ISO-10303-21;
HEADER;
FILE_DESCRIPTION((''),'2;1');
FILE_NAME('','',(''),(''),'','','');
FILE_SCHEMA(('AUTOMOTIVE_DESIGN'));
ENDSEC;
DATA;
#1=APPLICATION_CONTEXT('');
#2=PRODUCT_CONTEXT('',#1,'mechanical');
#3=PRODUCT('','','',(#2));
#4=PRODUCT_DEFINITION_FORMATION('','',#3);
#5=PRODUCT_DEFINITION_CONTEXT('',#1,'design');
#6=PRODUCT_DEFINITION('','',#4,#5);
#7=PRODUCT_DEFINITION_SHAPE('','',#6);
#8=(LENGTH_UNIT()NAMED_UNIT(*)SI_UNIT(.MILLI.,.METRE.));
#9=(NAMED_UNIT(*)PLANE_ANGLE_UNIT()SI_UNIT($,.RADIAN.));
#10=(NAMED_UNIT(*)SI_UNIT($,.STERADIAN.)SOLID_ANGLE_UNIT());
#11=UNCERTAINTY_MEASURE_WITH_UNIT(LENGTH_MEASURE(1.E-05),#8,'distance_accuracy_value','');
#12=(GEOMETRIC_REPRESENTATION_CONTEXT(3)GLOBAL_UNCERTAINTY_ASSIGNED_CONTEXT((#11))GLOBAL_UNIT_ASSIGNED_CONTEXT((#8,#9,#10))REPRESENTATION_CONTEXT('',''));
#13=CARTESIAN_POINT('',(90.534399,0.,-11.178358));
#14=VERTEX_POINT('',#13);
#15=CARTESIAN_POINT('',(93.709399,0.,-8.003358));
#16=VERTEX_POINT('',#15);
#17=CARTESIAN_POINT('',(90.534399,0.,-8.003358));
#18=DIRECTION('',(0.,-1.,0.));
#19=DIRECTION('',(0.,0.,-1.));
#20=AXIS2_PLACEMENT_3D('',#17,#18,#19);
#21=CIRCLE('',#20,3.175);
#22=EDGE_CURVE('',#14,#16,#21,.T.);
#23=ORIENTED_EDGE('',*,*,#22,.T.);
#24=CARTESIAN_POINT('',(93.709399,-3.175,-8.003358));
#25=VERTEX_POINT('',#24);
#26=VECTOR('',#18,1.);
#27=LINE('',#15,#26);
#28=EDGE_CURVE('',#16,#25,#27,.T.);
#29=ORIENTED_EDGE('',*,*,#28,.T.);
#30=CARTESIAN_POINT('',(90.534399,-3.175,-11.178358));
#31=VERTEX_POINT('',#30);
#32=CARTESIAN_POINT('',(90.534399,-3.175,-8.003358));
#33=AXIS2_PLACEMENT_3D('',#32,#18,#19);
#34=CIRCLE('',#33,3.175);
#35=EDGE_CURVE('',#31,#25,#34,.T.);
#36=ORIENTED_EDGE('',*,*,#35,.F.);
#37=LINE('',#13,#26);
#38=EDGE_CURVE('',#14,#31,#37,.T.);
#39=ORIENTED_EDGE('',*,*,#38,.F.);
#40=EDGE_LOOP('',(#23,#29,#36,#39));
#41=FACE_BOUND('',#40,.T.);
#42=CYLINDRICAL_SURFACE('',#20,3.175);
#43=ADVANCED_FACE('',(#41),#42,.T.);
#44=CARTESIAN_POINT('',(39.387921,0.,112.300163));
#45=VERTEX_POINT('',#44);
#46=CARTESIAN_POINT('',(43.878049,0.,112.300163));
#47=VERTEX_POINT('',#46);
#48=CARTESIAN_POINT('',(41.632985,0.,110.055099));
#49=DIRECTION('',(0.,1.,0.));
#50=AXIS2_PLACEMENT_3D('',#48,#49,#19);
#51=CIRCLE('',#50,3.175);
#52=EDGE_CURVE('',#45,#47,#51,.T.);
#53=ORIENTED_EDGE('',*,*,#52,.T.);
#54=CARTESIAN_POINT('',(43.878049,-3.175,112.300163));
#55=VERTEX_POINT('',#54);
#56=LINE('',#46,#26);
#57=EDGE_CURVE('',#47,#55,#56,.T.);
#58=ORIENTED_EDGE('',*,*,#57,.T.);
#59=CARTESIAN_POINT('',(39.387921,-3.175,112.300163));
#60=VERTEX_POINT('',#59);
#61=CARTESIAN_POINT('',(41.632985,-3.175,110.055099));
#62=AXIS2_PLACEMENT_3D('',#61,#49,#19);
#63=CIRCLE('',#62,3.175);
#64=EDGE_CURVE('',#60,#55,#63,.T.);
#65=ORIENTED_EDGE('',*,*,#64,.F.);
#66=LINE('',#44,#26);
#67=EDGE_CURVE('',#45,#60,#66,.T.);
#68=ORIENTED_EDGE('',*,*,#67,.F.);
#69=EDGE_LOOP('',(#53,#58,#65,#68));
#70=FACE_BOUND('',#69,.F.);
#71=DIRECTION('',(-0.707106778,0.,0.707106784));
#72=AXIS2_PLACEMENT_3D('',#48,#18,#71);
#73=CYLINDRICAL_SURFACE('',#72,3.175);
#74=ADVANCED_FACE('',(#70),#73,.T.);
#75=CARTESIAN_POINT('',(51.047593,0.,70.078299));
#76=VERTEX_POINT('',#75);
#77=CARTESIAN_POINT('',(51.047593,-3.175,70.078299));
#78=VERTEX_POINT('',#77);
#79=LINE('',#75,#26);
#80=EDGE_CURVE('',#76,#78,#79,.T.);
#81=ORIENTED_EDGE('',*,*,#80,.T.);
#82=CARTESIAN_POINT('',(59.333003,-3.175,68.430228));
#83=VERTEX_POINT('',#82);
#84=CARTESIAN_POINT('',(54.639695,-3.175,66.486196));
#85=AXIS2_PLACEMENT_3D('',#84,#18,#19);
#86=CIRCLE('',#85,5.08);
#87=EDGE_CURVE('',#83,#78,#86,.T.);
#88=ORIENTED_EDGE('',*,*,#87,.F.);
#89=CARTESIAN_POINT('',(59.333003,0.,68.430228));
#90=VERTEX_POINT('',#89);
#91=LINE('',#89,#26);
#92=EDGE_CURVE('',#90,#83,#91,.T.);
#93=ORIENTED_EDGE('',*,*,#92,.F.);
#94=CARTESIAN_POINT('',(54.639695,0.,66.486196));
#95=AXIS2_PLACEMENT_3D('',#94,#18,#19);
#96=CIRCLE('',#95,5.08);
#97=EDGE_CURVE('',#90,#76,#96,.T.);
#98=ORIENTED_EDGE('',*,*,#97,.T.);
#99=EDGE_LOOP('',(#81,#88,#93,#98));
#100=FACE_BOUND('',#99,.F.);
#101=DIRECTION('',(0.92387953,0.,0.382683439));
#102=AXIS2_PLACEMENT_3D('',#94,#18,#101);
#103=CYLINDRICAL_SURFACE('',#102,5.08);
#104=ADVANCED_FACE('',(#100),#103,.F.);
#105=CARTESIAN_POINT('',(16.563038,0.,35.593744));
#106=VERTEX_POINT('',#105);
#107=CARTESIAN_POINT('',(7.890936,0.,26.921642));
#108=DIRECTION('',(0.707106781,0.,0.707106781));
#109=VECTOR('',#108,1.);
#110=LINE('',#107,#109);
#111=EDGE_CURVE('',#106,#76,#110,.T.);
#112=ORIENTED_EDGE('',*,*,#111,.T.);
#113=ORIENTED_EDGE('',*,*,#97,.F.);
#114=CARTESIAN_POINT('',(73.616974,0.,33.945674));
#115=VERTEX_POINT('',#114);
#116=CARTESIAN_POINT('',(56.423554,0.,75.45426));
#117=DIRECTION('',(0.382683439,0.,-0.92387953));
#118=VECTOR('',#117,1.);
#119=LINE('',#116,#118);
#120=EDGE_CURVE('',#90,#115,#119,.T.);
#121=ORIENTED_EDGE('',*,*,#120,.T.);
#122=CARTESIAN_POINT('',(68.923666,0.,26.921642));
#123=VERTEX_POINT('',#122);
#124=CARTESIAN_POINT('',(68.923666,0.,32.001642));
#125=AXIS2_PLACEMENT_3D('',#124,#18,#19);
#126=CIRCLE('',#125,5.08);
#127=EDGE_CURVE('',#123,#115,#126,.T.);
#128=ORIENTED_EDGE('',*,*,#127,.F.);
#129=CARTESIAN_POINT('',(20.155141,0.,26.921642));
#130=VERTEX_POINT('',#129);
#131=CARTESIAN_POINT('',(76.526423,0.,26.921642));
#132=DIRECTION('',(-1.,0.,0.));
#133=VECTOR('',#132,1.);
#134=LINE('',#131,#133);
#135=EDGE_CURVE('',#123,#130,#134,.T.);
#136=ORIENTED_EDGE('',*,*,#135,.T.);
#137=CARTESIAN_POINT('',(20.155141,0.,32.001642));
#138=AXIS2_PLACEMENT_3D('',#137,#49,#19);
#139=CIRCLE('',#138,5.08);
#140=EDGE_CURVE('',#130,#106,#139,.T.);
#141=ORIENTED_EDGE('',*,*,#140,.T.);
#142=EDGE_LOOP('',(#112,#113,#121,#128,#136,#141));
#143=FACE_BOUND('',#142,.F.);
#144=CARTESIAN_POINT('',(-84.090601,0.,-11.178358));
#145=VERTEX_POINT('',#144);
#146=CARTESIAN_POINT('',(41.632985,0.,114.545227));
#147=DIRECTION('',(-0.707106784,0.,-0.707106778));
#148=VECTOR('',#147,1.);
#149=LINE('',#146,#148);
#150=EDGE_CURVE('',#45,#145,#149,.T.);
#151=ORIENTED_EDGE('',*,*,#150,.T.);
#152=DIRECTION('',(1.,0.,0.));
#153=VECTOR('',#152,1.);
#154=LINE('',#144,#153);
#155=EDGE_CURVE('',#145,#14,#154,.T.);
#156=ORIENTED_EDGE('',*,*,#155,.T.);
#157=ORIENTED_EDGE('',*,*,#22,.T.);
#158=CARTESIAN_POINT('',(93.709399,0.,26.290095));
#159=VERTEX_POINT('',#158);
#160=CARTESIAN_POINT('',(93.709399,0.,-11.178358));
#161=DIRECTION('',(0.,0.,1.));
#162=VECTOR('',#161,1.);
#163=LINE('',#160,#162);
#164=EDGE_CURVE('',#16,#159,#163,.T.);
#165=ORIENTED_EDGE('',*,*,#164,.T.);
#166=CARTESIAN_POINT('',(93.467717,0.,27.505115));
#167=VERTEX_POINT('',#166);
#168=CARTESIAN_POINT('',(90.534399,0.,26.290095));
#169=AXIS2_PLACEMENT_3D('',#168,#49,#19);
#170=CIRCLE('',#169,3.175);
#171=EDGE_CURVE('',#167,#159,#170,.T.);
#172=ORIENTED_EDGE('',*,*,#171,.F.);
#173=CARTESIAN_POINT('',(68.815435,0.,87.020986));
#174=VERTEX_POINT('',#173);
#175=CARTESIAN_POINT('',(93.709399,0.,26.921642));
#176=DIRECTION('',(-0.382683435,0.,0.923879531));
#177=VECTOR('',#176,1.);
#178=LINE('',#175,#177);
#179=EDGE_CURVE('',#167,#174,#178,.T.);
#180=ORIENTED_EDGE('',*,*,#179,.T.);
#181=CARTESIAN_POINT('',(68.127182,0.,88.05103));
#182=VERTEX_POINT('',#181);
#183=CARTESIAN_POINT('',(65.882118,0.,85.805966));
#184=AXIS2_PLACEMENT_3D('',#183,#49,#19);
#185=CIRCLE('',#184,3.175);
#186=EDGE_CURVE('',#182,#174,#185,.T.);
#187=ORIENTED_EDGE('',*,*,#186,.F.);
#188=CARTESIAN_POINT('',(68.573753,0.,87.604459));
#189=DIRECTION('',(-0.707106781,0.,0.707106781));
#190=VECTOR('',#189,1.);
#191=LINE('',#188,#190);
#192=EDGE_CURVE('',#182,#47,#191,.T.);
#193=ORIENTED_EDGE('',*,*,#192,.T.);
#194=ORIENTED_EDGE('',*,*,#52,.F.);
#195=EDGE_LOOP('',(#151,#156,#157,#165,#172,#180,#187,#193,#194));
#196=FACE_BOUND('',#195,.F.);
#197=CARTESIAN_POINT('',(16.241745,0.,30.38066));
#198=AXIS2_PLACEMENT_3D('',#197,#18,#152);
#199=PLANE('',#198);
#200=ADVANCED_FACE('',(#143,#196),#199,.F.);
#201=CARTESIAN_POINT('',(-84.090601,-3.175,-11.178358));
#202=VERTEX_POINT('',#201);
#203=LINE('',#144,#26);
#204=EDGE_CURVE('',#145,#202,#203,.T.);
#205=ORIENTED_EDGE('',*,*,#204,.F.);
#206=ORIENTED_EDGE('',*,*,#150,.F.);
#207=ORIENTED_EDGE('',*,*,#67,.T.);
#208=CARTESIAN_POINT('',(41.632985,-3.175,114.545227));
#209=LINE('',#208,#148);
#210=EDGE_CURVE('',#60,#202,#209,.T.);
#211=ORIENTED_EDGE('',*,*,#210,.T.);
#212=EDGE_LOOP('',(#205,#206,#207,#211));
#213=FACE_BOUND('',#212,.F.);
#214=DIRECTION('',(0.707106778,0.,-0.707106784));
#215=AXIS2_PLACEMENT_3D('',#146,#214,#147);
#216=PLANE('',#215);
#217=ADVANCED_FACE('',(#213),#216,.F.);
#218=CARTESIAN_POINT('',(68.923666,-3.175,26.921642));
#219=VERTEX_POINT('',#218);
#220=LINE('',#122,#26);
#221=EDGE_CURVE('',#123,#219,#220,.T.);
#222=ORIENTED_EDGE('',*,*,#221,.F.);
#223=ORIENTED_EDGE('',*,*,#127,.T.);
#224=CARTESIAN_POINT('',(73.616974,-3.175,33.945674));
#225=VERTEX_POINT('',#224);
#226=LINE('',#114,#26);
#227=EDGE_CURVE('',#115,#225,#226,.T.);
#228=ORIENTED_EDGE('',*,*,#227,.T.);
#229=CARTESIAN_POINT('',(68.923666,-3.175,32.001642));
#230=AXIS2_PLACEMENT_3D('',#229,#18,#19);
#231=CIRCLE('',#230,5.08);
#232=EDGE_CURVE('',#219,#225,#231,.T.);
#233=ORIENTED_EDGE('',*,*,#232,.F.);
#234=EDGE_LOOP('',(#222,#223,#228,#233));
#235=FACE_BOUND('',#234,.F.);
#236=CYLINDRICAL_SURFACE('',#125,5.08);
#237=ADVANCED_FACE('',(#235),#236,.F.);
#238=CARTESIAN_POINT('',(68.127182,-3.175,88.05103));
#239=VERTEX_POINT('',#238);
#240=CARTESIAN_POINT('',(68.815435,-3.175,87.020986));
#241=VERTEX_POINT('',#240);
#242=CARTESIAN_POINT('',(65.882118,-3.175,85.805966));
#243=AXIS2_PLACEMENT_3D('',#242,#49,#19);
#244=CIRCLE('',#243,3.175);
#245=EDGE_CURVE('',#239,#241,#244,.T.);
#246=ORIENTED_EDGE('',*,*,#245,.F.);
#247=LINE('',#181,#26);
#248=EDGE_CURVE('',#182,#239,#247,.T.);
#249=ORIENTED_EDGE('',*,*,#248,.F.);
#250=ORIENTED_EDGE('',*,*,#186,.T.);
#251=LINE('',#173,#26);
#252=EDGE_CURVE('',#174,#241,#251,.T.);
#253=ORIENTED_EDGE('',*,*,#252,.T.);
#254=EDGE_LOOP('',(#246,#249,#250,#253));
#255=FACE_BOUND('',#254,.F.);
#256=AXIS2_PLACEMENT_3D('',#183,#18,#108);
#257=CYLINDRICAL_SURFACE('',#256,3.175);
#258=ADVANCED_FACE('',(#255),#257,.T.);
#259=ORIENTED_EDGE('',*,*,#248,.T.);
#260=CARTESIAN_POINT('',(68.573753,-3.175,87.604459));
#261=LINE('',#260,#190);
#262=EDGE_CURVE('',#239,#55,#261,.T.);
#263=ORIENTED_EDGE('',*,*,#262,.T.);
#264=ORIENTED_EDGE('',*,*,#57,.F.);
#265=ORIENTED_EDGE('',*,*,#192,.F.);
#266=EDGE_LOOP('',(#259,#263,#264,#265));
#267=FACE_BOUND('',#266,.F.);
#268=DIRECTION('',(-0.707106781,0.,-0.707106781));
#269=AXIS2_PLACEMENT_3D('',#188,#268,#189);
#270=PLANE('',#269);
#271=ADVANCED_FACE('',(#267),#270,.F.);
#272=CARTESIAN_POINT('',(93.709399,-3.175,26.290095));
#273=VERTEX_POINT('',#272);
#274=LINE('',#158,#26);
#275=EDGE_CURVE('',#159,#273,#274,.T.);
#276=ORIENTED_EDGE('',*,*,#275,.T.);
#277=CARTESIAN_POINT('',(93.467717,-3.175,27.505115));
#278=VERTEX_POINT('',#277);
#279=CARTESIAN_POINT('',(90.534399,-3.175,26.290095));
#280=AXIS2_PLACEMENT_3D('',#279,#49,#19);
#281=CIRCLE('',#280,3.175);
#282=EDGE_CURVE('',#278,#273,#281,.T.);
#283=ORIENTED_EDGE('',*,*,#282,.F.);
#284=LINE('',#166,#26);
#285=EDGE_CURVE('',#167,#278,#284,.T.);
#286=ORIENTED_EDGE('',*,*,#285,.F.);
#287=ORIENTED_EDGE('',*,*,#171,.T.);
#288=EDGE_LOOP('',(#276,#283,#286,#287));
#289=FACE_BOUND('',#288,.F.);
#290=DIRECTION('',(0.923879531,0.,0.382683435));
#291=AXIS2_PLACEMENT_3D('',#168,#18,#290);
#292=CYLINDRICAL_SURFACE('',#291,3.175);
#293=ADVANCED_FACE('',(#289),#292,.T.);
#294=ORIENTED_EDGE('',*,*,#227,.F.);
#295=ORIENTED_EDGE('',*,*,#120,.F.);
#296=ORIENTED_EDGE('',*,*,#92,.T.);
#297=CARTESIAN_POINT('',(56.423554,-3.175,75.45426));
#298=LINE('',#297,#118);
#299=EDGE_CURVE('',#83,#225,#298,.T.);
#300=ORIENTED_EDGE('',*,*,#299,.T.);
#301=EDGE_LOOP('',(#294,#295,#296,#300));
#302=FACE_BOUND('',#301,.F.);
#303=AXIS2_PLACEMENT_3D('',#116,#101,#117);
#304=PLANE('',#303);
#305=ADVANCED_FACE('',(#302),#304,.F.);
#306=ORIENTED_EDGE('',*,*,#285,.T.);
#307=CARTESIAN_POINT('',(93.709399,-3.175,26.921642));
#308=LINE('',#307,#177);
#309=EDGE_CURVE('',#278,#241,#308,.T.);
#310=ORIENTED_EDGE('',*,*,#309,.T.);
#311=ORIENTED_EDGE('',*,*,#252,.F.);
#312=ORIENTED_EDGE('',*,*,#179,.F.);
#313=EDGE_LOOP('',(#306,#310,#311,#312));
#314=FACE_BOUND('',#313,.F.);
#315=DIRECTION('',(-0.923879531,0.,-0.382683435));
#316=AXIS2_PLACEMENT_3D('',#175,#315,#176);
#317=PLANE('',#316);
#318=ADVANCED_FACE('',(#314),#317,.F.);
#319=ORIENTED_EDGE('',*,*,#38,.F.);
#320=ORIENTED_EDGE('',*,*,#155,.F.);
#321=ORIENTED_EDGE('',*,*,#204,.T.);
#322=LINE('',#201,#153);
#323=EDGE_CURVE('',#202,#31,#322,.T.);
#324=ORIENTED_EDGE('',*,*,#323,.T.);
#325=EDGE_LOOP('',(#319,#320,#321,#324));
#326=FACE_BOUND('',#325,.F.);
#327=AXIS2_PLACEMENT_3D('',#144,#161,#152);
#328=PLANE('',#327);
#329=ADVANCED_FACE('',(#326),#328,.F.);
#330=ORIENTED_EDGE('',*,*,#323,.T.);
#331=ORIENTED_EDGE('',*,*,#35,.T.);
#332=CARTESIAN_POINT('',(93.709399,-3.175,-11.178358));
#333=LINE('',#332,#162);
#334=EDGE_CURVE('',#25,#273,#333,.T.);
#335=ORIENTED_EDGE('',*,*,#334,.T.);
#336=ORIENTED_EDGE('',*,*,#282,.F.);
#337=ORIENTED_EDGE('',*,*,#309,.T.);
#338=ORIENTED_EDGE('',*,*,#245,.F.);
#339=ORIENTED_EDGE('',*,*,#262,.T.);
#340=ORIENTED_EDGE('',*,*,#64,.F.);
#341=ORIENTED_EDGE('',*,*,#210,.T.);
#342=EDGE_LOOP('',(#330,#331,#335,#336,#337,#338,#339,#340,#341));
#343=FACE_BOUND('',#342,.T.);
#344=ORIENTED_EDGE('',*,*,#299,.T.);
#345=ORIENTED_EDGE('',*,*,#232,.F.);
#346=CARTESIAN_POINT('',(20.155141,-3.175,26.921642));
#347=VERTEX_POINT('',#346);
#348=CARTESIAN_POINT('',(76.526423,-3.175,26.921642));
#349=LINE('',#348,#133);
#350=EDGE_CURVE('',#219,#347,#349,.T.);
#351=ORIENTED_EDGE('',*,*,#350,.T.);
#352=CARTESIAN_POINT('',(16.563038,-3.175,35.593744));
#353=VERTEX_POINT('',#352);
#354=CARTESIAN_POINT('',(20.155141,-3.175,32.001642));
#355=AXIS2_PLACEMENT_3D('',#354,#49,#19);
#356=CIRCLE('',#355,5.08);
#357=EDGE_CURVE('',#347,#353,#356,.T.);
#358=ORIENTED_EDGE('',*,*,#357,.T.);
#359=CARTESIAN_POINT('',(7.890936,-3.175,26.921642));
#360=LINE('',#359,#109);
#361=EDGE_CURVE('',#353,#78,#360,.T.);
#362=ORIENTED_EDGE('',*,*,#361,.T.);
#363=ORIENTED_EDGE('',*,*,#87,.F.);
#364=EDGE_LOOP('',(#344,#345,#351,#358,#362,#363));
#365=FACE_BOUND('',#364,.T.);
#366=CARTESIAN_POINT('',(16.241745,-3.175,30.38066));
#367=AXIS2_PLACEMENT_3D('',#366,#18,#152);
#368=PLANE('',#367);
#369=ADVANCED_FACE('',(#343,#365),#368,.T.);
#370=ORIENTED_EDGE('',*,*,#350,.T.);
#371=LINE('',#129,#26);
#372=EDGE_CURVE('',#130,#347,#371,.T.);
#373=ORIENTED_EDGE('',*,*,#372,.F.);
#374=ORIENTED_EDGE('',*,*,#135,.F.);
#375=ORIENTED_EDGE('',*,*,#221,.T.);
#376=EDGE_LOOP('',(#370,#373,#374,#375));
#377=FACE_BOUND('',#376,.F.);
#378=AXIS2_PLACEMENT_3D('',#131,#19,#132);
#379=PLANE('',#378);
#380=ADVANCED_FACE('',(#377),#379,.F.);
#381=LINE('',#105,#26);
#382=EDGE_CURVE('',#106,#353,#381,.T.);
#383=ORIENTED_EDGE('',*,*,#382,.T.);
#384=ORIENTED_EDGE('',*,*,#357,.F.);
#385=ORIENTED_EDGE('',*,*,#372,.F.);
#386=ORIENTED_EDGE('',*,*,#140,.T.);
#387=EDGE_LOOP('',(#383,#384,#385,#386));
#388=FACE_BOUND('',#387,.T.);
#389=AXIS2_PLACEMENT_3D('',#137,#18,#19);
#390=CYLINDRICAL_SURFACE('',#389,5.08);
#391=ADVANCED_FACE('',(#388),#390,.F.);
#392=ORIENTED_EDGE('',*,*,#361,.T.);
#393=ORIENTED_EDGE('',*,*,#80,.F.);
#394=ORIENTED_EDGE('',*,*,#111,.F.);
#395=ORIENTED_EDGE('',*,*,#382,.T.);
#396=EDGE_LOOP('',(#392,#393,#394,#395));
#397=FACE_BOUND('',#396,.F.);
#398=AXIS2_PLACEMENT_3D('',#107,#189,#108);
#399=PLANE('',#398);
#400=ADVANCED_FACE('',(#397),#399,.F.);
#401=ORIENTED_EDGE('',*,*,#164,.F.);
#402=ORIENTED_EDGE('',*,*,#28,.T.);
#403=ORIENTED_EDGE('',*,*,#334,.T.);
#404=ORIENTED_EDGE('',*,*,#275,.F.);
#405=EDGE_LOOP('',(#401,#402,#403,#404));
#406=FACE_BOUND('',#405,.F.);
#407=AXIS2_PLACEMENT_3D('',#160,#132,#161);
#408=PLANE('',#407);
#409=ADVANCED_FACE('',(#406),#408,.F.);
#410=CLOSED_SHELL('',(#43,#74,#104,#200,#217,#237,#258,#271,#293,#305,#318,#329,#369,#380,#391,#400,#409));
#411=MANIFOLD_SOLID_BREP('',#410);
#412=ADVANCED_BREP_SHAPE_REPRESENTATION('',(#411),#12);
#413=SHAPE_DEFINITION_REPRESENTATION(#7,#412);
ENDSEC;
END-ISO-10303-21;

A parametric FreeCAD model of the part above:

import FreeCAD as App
import Part
import Sketcher
from FreeCAD import Vector
Q = App.Units.Quantity


def edges_at(feature, points):
    """Names of the edges that pass closest to the given points."""
    edges = feature.Shape.Edges
    near = lambda p: min(range(len(edges)), key=lambda i: edges[i].distToShape(Part.Vertex(*p))[0])
    return sorted({f"Edge{near(p) + 1}" for p in points})

doc = App.newDocument("Part")
params = doc.addObject("Spreadsheet::Sheet", "Params")
for row, (alias, value) in enumerate([
    ("sketch1_width", "7 in"),
    ("sketch1_length", "7 in"),
    ("sketch1_height", "1.5 in"),
    ("sketch1_length2", "1.5 in"),
    ("pad1_length", "0.125 in"),
    ("fillet_radius", "0.2 in"),
    ("fillet2_radius", "0.125 in"),
], start=1):
    params.set(f"A{row}", alias)
    params.set(f"B{row}", "=" + value)
    params.setAlias(f"B{row}", alias)

body = doc.addObject("PartDesign::Body", "Body")

# Sketch on XZ plane
sketch1 = body.newObject("Sketcher::SketchObject", "Sketch")
sketch1.AttachmentSupport = (doc.getObject("XZ_Plane"), [""])
sketch1.MapMode = "FlatFace"
sketch1.addGeometry(Part.LineSegment(Vector(42, 115, 0), Vector(-84, -11, 0)), False)
sketch1.addGeometry(Part.LineSegment(Vector(-84, -11, 0), Vector(94, -11, 0)), False)
sketch1.addGeometry(Part.LineSegment(Vector(94, -11, 0), Vector(94, 27, 0)), False)
sketch1.addGeometry(Part.LineSegment(Vector(94, 27, 0), Vector(69, 88, 0)), False)
sketch1.addGeometry(Part.LineSegment(Vector(69, 88, 0), Vector(42, 115, 0)), False)
sketch1.addGeometry(Part.LineSegment(Vector(77, 27, 0), Vector(8, 27, 0)), False)
sketch1.addGeometry(Part.LineSegment(Vector(8, 27, 0), Vector(56, 75, 0)), False)
sketch1.addGeometry(Part.LineSegment(Vector(56, 75, 0), Vector(77, 27, 0)), False)
sketch1.addConstraint(Sketcher.Constraint("Coincident", 0, 2, 1, 1))
sketch1.addConstraint(Sketcher.Constraint("Coincident", 1, 2, 2, 1))
sketch1.addConstraint(Sketcher.Constraint("Coincident", 2, 2, 3, 1))
sketch1.addConstraint(Sketcher.Constraint("Coincident", 3, 2, 4, 1))
sketch1.addConstraint(Sketcher.Constraint("Coincident", 4, 2, 0, 1))
sketch1.addConstraint(Sketcher.Constraint("Coincident", 5, 2, 6, 1))
sketch1.addConstraint(Sketcher.Constraint("Coincident", 6, 2, 7, 1))
sketch1.addConstraint(Sketcher.Constraint("Coincident", 7, 2, 5, 1))
sketch1.addConstraint(Sketcher.Constraint("Horizontal", 1))
sketch1.addConstraint(Sketcher.Constraint("Vertical", 2))
sketch1.addConstraint(Sketcher.Constraint("Horizontal", 5))
sketch1.addConstraint(Sketcher.Constraint("Perpendicular", 0, 4))
sketch1.addConstraint(Sketcher.Constraint("Perpendicular", 4, 6))
sketch1.addConstraint(Sketcher.Constraint("Parallel", 3, 7))
sketch1.addConstraint(Sketcher.Constraint("Horizontal", 2, 2, 5, 2))
sketch1.addConstraint(Sketcher.Constraint("DistanceX", 1, 1, 1, 2, Q("7 in")))
sketch1.addConstraint(Sketcher.Constraint("Distance", 0, Q("7 in")))
sketch1.addConstraint(Sketcher.Constraint("DistanceY", 2, 1, 2, 2, Q("1.5 in")))
sketch1.addConstraint(Sketcher.Constraint("Angle", 0, Q("-135 deg")))
sketch1.addConstraint(Sketcher.Constraint("Distance", 4, Q("1.5 in")))
sketch1.addConstraint(Sketcher.Constraint("DistanceX", 0, 2, -1, 1, 84.090601))
sketch1.addConstraint(Sketcher.Constraint("DistanceX", 6, 2, 3, 2, 12.150199))
sketch1.addConstraint(Sketcher.Constraint("DistanceY", 6, 2, 3, 2, 12.150199))
sketch1.addConstraint(Sketcher.Constraint("DistanceY", -1, 1, 2, 2, 26.921642))
sketch1.setExpression("Constraints[15]", "Params.sketch1_width")
sketch1.setExpression("Constraints[16]", "Params.sketch1_length")
sketch1.setExpression("Constraints[17]", "Params.sketch1_height")
sketch1.setExpression("Constraints[19]", "Params.sketch1_length2")
pad1 = body.newObject("PartDesign::Pad", "Pad")
pad1.Profile = sketch1
pad1.setExpression("Length", "Params.pad1_length")
doc.recompute()

fillet = body.newObject("PartDesign::Fillet", "Fillet")
fillet.Base = (pad1, edges_at(pad1, [(7.891, -1.587, 26.922), (76.526, -1.587, 26.922), (56.424, -1.587, 75.454)]))
fillet.setExpression("Radius", "Params.fillet_radius")
doc.recompute()

fillet2 = body.newObject("PartDesign::Fillet", "Fillet001")
fillet2.Base = (fillet, edges_at(fillet, [
    (41.633, -1.587, 114.545),
    (68.574, -1.587, 87.604),
    (93.709, -1.587, 26.922),
    (93.709, -1.587, -11.178),
]))
fillet2.setExpression("Radius", "Params.fillet2_radius")

doc.recompute()
